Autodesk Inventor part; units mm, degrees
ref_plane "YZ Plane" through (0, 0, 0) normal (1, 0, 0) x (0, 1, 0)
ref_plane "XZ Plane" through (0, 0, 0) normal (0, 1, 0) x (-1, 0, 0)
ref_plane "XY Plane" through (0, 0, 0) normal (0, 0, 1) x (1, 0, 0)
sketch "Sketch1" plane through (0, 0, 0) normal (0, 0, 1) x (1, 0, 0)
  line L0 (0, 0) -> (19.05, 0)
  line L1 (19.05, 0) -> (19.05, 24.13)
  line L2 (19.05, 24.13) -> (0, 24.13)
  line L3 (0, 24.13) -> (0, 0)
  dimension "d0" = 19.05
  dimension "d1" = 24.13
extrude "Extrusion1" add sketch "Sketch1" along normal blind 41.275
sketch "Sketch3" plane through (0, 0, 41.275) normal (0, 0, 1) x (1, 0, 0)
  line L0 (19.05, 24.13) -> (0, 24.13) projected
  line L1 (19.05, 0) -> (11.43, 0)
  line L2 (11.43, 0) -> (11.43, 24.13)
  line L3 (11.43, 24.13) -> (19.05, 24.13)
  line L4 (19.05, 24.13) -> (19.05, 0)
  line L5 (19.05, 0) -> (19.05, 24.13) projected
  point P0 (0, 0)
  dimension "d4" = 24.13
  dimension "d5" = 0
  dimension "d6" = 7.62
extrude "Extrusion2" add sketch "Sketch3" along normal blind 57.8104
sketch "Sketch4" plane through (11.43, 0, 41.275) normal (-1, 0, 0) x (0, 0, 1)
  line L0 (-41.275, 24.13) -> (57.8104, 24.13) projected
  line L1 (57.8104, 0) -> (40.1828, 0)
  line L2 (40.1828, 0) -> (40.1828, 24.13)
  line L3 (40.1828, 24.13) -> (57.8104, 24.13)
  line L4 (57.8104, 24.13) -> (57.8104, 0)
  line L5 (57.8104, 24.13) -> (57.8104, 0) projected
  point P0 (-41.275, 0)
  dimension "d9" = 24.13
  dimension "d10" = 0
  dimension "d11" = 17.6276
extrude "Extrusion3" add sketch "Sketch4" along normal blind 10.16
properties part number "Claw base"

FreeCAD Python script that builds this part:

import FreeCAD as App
import Part
import Sketcher
from FreeCAD import Vector
Q = App.Units.Quantity

doc = App.newDocument("Part")
body = doc.addObject("PartDesign::Body", "Body")

# Sketch on XY plane
sketch1 = body.newObject("Sketcher::SketchObject", "Sketch")
sketch1.AttachmentSupport = (doc.getObject("XY_Plane"), [""])
sketch1.MapMode = "FlatFace"
sketch1.addGeometry(Part.LineSegment(Vector(0, 24, 0), Vector(0, 0, 0)), False)
sketch1.addGeometry(Part.LineSegment(Vector(0, 0, 0), Vector(19, 0, 0)), False)
sketch1.addGeometry(Part.LineSegment(Vector(19, 0, 0), Vector(19, 24, 0)), False)
sketch1.addGeometry(Part.LineSegment(Vector(19, 24, 0), Vector(0, 24, 0)), False)
sketch1.addConstraint(Sketcher.Constraint("Coincident", 0, 2, 1, 1))
sketch1.addConstraint(Sketcher.Constraint("Coincident", 1, 2, 2, 1))
sketch1.addConstraint(Sketcher.Constraint("Coincident", 2, 2, 3, 1))
sketch1.addConstraint(Sketcher.Constraint("Coincident", 3, 2, 0, 1))
sketch1.addConstraint(Sketcher.Constraint("Vertical", 0))
sketch1.addConstraint(Sketcher.Constraint("Horizontal", 1))
sketch1.addConstraint(Sketcher.Constraint("Vertical", 2))
sketch1.addConstraint(Sketcher.Constraint("Horizontal", 3))
sketch1.addConstraint(Sketcher.Constraint("Coincident", 0, 2, -1, 1))
sketch1.addConstraint(Sketcher.Constraint("DistanceX", 1, 1, 1, 2, Q("0.75 in")))
sketch1.addConstraint(Sketcher.Constraint("DistanceY", 0, 2, 0, 1, Q("0.95 in")))
pad1 = body.newObject("PartDesign::Pad", "Pad")
pad1.Profile = sketch1
pad1.Length = Q("1.625 in")

# Sketch on XY plane
sketch2 = body.newObject("Sketcher::SketchObject", "Sketch001")
sketch2.AttachmentSupport = (doc.getObject("XY_Plane"), [""])
sketch2.MapMode = "FlatFace"
sketch2.AttachmentOffset = App.Placement(Vector(0, 0, 1.625 * 25.4), App.Rotation())
sketch2.addGeometry(Part.LineSegment(Vector(19, 0, 0), Vector(19, 24, 0)), False)
sketch2.addGeometry(Part.LineSegment(Vector(19, 24, 0), Vector(11, 24, 0)), False)
sketch2.addGeometry(Part.LineSegment(Vector(11, 24, 0), Vector(11, 0, 0)), False)
sketch2.addGeometry(Part.LineSegment(Vector(11, 0, 0), Vector(19, 0, 0)), False)
sketch2.addConstraint(Sketcher.Constraint("Coincident", 0, 2, 1, 1))
sketch2.addConstraint(Sketcher.Constraint("Coincident", 1, 2, 2, 1))
sketch2.addConstraint(Sketcher.Constraint("Coincident", 2, 2, 3, 1))
sketch2.addConstraint(Sketcher.Constraint("Coincident", 3, 2, 0, 1))
sketch2.addConstraint(Sketcher.Constraint("Vertical", 0))
sketch2.addConstraint(Sketcher.Constraint("Horizontal", 1))
sketch2.addConstraint(Sketcher.Constraint("Vertical", 2))
sketch2.addConstraint(Sketcher.Constraint("Horizontal", 3))
sketch2.addConstraint(Sketcher.Constraint("PointOnObject", 2, 2, -1))
sketch2.addConstraint(Sketcher.Constraint("DistanceX", 1, 2, 1, 1, Q("0.3 in")))
sketch2.addConstraint(Sketcher.Constraint("DistanceY", 0, 1, 0, 2, Q("0.95 in")))
sketch2.addConstraint(Sketcher.Constraint("DistanceX", -1, 1, 0, 2, Q("0.75 in")))
pad2 = body.newObject("PartDesign::Pad", "Pad001")
pad2.Profile = sketch2
pad2.Length = Q("2.276 in")

# Sketch on YZ plane
sketch3 = body.newObject("Sketcher::SketchObject", "Sketch002")
sketch3.AttachmentSupport = (doc.getObject("YZ_Plane"), [""])
sketch3.MapMode = "FlatFace"
sketch3.AttachmentOffset = App.Placement(Vector(0, 0, 0.45 * 25.4), App.Rotation())
sketch3.addGeometry(Part.LineSegment(Vector(24, 99, 0), Vector(24, 81, 0)), False)
sketch3.addGeometry(Part.LineSegment(Vector(24, 81, 0), Vector(0, 81, 0)), False)
sketch3.addGeometry(Part.LineSegment(Vector(0, 81, 0), Vector(0, 99, 0)), False)
sketch3.addGeometry(Part.LineSegment(Vector(0, 99, 0), Vector(24, 99, 0)), False)
sketch3.addConstraint(Sketcher.Constraint("Coincident", 0, 2, 1, 1))
sketch3.addConstraint(Sketcher.Constraint("Coincident", 1, 2, 2, 1))
sketch3.addConstraint(Sketcher.Constraint("Coincident", 2, 2, 3, 1))
sketch3.addConstraint(Sketcher.Constraint("Coincident", 3, 2, 0, 1))
sketch3.addConstraint(Sketcher.Constraint("Vertical", 0))
sketch3.addConstraint(Sketcher.Constraint("Horizontal", 1))
sketch3.addConstraint(Sketcher.Constraint("Vertical", 2))
sketch3.addConstraint(Sketcher.Constraint("Horizontal", 3))
sketch3.addConstraint(Sketcher.Constraint("PointOnObject", 1, 2, -2))
sketch3.addConstraint(Sketcher.Constraint("DistanceX", 1, 2, 1, 1, Q("0.95 in")))
sketch3.addConstraint(Sketcher.Constraint("DistanceY", 0, 2, 0, 1, Q("0.694 in")))
sketch3.addConstraint(Sketcher.Constraint("DistanceY", -1, 1, 0, 2, Q("3.207 in")))
pad3 = body.newObject("PartDesign::Pad", "Pad002")
pad3.Profile = sketch3
pad3.Length = Q("0.4 in")
pad3.Reversed = True

doc.recompute()
